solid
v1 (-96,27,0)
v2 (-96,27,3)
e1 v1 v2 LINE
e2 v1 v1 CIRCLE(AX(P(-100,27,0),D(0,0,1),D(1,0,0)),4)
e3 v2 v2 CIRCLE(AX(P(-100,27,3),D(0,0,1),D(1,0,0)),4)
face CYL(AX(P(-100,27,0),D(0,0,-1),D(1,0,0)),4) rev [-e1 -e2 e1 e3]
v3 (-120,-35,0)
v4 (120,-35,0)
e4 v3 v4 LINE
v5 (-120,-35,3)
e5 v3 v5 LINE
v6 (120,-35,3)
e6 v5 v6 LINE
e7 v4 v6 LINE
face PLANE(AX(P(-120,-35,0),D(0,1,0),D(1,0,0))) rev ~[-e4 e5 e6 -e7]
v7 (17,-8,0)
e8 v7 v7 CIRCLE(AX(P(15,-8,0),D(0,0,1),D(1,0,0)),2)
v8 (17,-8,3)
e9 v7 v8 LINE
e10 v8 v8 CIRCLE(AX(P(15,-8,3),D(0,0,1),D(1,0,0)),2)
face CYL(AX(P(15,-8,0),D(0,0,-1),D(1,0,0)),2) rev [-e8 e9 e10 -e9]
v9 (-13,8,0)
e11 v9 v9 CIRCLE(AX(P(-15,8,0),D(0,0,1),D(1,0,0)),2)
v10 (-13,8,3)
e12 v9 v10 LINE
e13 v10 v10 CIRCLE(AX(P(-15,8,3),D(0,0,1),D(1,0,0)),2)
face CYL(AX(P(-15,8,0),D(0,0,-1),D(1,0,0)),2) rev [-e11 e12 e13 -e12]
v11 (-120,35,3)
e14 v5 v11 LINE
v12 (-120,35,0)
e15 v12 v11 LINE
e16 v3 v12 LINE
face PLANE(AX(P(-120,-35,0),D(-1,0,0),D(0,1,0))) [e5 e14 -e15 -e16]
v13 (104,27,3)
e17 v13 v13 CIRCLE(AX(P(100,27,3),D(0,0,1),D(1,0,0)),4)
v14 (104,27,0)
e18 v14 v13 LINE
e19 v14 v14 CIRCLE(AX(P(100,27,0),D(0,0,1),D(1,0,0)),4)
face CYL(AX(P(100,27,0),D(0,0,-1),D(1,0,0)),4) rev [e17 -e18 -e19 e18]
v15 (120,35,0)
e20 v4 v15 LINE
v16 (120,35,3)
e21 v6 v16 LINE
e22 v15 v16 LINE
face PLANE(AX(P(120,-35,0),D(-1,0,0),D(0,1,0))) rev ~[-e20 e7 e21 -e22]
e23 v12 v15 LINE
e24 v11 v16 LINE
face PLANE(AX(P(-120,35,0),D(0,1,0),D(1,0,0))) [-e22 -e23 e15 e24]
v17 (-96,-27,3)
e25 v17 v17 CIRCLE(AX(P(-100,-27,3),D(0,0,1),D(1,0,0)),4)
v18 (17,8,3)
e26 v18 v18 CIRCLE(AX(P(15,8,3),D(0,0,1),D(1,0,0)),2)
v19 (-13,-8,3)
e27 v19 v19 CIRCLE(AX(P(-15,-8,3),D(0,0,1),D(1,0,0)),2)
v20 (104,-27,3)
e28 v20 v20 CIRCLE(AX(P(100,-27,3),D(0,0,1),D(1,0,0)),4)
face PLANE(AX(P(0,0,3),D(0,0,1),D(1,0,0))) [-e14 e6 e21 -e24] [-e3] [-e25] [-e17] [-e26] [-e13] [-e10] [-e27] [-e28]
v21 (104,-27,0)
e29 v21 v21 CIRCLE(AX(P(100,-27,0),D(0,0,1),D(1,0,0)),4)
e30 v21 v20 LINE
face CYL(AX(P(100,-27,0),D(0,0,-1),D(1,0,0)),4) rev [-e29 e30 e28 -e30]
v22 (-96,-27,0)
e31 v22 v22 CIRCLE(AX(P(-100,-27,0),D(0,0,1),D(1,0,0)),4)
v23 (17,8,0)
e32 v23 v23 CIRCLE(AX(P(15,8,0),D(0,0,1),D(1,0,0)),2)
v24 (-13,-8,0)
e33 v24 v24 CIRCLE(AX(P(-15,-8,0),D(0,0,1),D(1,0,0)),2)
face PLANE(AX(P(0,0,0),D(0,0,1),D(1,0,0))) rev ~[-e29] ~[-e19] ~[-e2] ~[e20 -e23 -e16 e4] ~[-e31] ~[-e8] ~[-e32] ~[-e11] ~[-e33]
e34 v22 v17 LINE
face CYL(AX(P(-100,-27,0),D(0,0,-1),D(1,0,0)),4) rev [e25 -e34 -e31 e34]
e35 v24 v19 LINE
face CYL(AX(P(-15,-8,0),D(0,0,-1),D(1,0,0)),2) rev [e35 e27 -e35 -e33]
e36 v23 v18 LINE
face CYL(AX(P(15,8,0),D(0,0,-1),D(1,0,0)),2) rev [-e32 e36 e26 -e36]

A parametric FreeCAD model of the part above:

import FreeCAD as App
import Part
import Sketcher

V = App.Vector


def add_polygon(sketch, points):
    """Adds a closed chain of lines whose ends are joined by coincident constraints."""
    first, n = sketch.GeometryCount, len(points)
    for a, b in zip(points, points[1:] + points[:1]):
        sketch.addGeometry(Part.LineSegment(App.Vector(*a, 0), App.Vector(*b, 0)), False)
    for i in range(n):
        sketch.addConstraint(Sketcher.Constraint("Coincident", first + i, 2, first + (i + 1) % n, 1))

doc = App.newDocument("Part")
body = doc.addObject("PartDesign::Body", "Body")

# Sketch on XY plane
sketch1 = body.newObject("Sketcher::SketchObject", "Sketch")
sketch1.AttachmentSupport = (doc.getObject("XY_Plane"), [""])
sketch1.MapMode = "FlatFace"
add_polygon(sketch1, [(-120, 35), (-120, -35), (120, -35), (120, 35)])  # lines 0-3
sketch1.addGeometry(Part.Circle(V(-100, -27, 0), V(0, 0, 1), 4), False)  # 4
sketch1.addGeometry(Part.Circle(V(-15, -8, 0), V(0, 0, 1), 2), False)  # 5
sketch1.addGeometry(Part.Circle(V(100, -27, 0), V(0, 0, 1), 4), False)  # 6
sketch1.addGeometry(Part.Circle(V(15, -8, 0), V(0, 0, 1), 2), False)  # 7
sketch1.addGeometry(Part.Circle(V(-15, 8, 0), V(0, 0, 1), 2), False)  # 8
sketch1.addGeometry(Part.Circle(V(-100, 27, 0), V(0, 0, 1), 4), False)  # 9
sketch1.addGeometry(Part.Circle(V(15, 8, 0), V(0, 0, 1), 2), False)  # 10
sketch1.addGeometry(Part.Circle(V(100, 27, 0), V(0, 0, 1), 4), False)  # 11
sketch1.addConstraint([
    Sketcher.Constraint("Vertical", 0),
    Sketcher.Constraint("Horizontal", 1),
    Sketcher.Constraint("Vertical", 2),
    Sketcher.Constraint("Horizontal", 3),
    Sketcher.Constraint("Equal", 4, 6),
    Sketcher.Constraint("Equal", 5, 7),
    Sketcher.Constraint("Equal", 7, 8),
    Sketcher.Constraint("Equal", 6, 9),
    Sketcher.Constraint("Equal", 8, 10),
    Sketcher.Constraint("Equal", 9, 11),
    Sketcher.Constraint("Symmetric", 7, 3, 8, 3, -1, 1),
    Sketcher.Constraint("Symmetric", 6, 3, 9, 3, -1, 1),
    Sketcher.Constraint("Symmetric", 5, 3, 10, 3, -1, 1),
    Sketcher.Constraint("Symmetric", 4, 3, 11, 3, -1, 1),
    Sketcher.Constraint("Symmetric", 0, 2, 2, 2, -1, 1),
    Sketcher.Constraint("Symmetric", 4, 3, 6, 3, -2),
    Sketcher.Constraint("Symmetric", 5, 3, 7, 3, -2),
    Sketcher.Constraint("Diameter", 4, 8.0),
    Sketcher.Constraint("Diameter", 5, 4.0),
    Sketcher.Constraint("DistanceX", 1, 1, 1, 2, 240.0),
    Sketcher.Constraint("DistanceY", 0, 2, 0, 1, 70.0),
    Sketcher.Constraint("DistanceX", 4, 3, -1, 1, 100.0),
    Sketcher.Constraint("DistanceY", 4, 3, -1, 1, 27.0),
    Sketcher.Constraint("DistanceX", 5, 3, -1, 1, 15.0),
    Sketcher.Constraint("DistanceY", 5, 3, -1, 1, 8.0),
])
pad1 = body.newObject("PartDesign::Pad", "Pad")
pad1.Profile = sketch1
pad1.Length = 3

doc.recompute()
